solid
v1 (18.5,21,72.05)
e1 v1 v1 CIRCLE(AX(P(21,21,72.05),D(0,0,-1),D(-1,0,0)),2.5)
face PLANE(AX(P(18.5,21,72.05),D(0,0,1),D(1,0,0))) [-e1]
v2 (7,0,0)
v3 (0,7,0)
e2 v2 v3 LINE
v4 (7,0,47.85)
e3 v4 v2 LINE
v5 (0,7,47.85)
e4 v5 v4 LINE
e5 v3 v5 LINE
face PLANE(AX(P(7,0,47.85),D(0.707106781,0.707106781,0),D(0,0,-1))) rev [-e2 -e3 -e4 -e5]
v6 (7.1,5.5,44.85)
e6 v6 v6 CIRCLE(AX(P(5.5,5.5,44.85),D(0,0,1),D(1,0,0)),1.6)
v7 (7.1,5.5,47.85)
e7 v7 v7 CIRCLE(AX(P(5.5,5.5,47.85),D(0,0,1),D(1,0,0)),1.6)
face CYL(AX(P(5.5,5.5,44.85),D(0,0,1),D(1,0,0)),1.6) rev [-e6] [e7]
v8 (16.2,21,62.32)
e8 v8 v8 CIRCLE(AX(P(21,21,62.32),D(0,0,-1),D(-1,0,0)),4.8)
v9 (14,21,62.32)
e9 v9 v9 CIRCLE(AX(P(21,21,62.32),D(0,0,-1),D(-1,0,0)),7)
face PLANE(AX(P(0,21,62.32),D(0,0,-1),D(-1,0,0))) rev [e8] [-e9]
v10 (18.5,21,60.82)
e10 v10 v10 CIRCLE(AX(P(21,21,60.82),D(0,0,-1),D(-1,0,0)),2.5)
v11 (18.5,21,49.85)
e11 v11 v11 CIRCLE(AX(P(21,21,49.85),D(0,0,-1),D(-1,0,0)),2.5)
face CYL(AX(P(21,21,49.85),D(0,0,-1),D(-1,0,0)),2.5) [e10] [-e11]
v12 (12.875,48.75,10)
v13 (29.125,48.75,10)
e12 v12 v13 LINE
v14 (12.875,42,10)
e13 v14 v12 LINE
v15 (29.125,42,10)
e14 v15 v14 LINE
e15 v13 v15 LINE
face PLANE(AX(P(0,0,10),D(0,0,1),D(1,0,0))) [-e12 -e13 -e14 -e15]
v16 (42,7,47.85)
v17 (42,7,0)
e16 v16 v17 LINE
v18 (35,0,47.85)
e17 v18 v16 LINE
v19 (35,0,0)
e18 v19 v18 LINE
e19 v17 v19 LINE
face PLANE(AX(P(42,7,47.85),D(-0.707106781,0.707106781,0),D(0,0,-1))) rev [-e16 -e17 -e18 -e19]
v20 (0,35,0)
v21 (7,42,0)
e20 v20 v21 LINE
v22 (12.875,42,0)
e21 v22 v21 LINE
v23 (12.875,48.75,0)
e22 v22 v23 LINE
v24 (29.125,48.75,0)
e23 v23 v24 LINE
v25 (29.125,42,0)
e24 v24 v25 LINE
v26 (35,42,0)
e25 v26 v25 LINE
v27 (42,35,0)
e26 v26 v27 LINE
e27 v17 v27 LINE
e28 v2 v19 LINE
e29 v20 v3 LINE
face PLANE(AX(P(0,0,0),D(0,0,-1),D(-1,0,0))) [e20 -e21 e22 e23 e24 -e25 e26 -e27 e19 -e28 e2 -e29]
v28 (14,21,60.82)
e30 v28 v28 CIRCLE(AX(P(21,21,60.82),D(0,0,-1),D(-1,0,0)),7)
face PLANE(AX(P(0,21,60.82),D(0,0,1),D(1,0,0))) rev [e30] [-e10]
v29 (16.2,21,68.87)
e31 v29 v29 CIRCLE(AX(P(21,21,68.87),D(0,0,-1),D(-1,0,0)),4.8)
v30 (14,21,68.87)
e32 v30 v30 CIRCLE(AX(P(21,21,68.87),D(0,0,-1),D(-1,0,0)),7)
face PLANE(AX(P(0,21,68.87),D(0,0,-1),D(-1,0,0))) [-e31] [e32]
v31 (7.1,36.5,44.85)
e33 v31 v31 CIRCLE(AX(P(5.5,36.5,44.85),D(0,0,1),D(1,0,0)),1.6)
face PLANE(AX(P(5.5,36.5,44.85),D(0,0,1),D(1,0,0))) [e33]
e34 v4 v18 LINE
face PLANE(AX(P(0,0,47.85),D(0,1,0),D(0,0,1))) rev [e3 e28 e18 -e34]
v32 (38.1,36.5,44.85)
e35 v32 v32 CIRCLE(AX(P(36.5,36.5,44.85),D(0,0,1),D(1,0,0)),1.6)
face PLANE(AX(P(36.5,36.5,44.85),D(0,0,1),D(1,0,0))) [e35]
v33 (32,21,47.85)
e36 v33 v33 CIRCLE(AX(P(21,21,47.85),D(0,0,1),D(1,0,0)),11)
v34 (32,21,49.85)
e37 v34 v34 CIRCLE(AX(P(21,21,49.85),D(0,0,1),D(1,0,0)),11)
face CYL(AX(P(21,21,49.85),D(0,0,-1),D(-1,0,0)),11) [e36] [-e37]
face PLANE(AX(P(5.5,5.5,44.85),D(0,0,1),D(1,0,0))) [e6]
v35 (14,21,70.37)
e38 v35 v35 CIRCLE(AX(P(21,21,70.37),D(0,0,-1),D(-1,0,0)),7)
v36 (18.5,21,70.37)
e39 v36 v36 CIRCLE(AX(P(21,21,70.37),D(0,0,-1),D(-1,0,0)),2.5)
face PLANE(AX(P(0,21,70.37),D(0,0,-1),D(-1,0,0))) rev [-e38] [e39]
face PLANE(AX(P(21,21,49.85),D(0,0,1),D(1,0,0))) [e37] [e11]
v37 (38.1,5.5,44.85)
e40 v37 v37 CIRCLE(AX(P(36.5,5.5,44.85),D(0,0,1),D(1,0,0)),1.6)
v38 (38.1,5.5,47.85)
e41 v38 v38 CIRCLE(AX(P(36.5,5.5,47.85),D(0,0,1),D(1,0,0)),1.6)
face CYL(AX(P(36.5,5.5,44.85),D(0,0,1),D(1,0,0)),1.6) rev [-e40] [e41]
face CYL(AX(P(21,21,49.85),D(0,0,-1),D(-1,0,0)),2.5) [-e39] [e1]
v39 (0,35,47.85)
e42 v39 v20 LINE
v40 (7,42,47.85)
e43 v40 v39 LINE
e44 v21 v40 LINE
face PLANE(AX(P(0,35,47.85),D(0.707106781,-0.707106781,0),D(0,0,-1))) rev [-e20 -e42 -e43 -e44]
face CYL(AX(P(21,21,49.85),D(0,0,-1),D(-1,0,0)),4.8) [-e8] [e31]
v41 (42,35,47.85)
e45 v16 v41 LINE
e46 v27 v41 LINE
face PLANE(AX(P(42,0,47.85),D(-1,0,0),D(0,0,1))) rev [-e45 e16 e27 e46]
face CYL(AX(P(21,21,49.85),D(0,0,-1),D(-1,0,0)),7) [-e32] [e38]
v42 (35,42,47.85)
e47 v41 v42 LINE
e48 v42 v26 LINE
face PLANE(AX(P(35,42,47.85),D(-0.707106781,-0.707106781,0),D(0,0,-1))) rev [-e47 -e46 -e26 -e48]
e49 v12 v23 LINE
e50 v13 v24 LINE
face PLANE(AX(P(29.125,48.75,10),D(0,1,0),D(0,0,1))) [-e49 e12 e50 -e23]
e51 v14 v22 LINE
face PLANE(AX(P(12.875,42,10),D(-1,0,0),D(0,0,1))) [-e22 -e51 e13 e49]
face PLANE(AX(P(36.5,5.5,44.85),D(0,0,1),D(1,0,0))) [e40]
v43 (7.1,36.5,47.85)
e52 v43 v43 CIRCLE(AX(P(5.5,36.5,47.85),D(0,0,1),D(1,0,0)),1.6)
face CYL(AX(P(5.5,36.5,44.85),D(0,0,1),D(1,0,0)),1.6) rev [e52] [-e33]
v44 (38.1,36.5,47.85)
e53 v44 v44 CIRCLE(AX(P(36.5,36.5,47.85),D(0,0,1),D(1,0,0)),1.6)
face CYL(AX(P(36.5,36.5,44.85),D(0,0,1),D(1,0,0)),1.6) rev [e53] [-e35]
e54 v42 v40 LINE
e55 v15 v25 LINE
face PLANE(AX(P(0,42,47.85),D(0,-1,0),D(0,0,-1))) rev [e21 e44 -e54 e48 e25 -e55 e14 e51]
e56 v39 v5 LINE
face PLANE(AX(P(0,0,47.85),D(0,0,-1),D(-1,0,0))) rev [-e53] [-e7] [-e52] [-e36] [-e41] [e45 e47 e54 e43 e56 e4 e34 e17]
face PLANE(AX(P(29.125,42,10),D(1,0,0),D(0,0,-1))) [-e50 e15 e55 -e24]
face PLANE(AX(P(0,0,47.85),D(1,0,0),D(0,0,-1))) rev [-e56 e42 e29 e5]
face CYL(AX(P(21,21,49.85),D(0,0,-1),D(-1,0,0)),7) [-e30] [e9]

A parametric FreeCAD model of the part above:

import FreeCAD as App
import Part
import Sketcher


def edges_at(feature, points):
    """Names of the edges that pass closest to the given points."""
    edges = feature.Shape.Edges
    near = lambda p: min(range(len(edges)), key=lambda i: edges[i].distToShape(Part.Vertex(*p))[0])
    return sorted({f"Edge{near(p) + 1}" for p in points})

doc = App.newDocument("Part")
body = doc.addObject("PartDesign::Body", "Body")

sketch1 = doc.addObject("Sketcher::SketchObject", "Sketch")
body.addObject(sketch1)
sketch1.AttachmentSupport = (doc.XY_Plane, [""])
sketch1.MapMode = "FlatFace"
sketch1.addGeometry([
    Part.LineSegment(App.Vector(0, 42, 0), App.Vector(0, 0, 0)),
    Part.LineSegment(App.Vector(0, 0, 0), App.Vector(42, 0, 0)),
    Part.LineSegment(App.Vector(42, 0, 0), App.Vector(42, 42, 0)),
    Part.LineSegment(App.Vector(42, 42, 0), App.Vector(0, 42, 0)),
], False)
sketch1.addConstraint([
    Sketcher.Constraint("Coincident", 0, 2, 1, 1),
    Sketcher.Constraint("Coincident", 1, 2, 2, 1),
    Sketcher.Constraint("Coincident", 2, 2, 3, 1),
    Sketcher.Constraint("Coincident", 3, 2, 0, 1),
    Sketcher.Constraint("Vertical", 0),
    Sketcher.Constraint("Horizontal", 1),
    Sketcher.Constraint("Vertical", 2),
    Sketcher.Constraint("Horizontal", 3),
    Sketcher.Constraint("Coincident", 0, 2, -1, 1),
    Sketcher.Constraint("Equal", 3, 0),
    Sketcher.Constraint("DistanceX", 1, 1, 1, 2, 42.0),
])
pad1 = doc.addObject("PartDesign::Pad", "Pad")
body.addObject(pad1)
pad1.Profile = sketch1
pad1.Length = 47.85
doc.recompute()

chamfer = doc.addObject("PartDesign::Chamfer", "Chamfer")
body.addObject(chamfer)
chamfer.Base = (pad1, edges_at(pad1, [
    (0, 42, 23.925),
    (42, 42, 23.925),
    (42, 0, 23.925),
    (0, 0, 23.925),
]))
chamfer.Size = 7

sketch2 = doc.addObject("Sketcher::SketchObject", "Sketch001")
body.addObject(sketch2)
sketch2.AttachmentSupport = (doc.XY_Plane, [""])
sketch2.MapMode = "FlatFace"
sketch2.AttachmentOffset = App.Placement(App.Vector(0, 0, 47.85), App.Rotation())
sketch2.addGeometry(Part.Circle(App.Vector(21, 21, 0), App.Vector(0, 0, 1), 11), False)
sketch2.addConstraint([
    Sketcher.Constraint("Diameter", 0, 22.0),
    Sketcher.Constraint("DistanceX", -1, 1, 0, 3, 21.0),
    Sketcher.Constraint("DistanceY", -1, 1, 0, 3, 21.0),
])
pad2 = doc.addObject("PartDesign::Pad", "Pad001")
body.addObject(pad2)
pad2.Profile = sketch2
pad2.Length = 2

sketch3 = doc.addObject("Sketcher::SketchObject", "Sketch002")
body.addObject(sketch3)
sketch3.AttachmentSupport = (doc.XY_Plane, [""])
sketch3.MapMode = "FlatFace"
sketch3.addGeometry([
    Part.LineSegment(App.Vector(29, 49, 0), App.Vector(29, 42, 0)),
    Part.LineSegment(App.Vector(29, 42, 0), App.Vector(13, 42, 0)),
    Part.LineSegment(App.Vector(13, 42, 0), App.Vector(13, 49, 0)),
    Part.LineSegment(App.Vector(13, 49, 0), App.Vector(29, 49, 0)),
], False)
sketch3.addConstraint([
    Sketcher.Constraint("Coincident", 0, 2, 1, 1),
    Sketcher.Constraint("Coincident", 1, 2, 2, 1),
    Sketcher.Constraint("Coincident", 2, 2, 3, 1),
    Sketcher.Constraint("Coincident", 3, 2, 0, 1),
    Sketcher.Constraint("Vertical", 0),
    Sketcher.Constraint("Horizontal", 1),
    Sketcher.Constraint("Vertical", 2),
    Sketcher.Constraint("Horizontal", 3),
    Sketcher.Constraint("DistanceY", -1, 1, 0, 2, 42.0),
    Sketcher.Constraint("DistanceX", 1, 2, 1, 1, 16.25),
    Sketcher.Constraint("DistanceY", 0, 2, 0, 1, 6.75),
    Sketcher.Constraint("DistanceX", -1, 1, 0, 2, 29.125),
])
pad3 = doc.addObject("PartDesign::Pad", "Pad002")
body.addObject(pad3)
pad3.Profile = sketch3
pad3.Length = 10

sketch4 = doc.addObject("Sketcher::SketchObject", "Sketch003")
body.addObject(sketch4)
sketch4.AttachmentSupport = (doc.XY_Plane, [""])
sketch4.MapMode = "FlatFace"
sketch4.AttachmentOffset = App.Placement(App.Vector(0, 0, 47.85), App.Rotation())
sketch4.addGeometry([
    Part.Circle(App.Vector(5.5, 36.5, 0), App.Vector(0, 0, 1), 1.6),
    Part.Circle(App.Vector(36.5, 36.5, 0), App.Vector(0, 0, 1), 1.6),
    Part.Circle(App.Vector(36.5, 5.5, 0), App.Vector(0, 0, 1), 1.6),
    Part.Circle(App.Vector(5.5, 5.5, 0), App.Vector(0, 0, 1), 1.6),
], False)
sketch4.addConstraint([
    Sketcher.Constraint("Equal", 0, 1),
    Sketcher.Constraint("Equal", 1, 2),
    Sketcher.Constraint("Equal", 2, 3),
    Sketcher.Constraint("Horizontal", 0, 3, 1, 3),
    Sketcher.Constraint("Horizontal", 2, 3, 3, 3),
    Sketcher.Constraint("Vertical", 1, 3, 2, 3),
    Sketcher.Constraint("Vertical", 0, 3, 3, 3),
    Sketcher.Constraint("Diameter", 0, 3.2),
    Sketcher.Constraint("DistanceX", 0, 3, 1, 3, 31.0),
    Sketcher.Constraint("DistanceY", 2, 3, 1, 3, 31.0),
    Sketcher.Constraint("DistanceX", -1, 1, 0, 3, 5.5),
    Sketcher.Constraint("DistanceY", -1, 1, 0, 3, 36.5),
])
pocket1 = doc.addObject("PartDesign::Pocket", "Pocket")
body.addObject(pocket1)
pocket1.Profile = sketch4
pocket1.Length = 3

sketch5 = doc.addObject("Sketcher::SketchObject", "Sketch004")
body.addObject(sketch5)
sketch5.AttachmentSupport = (doc.XZ_Plane, [""])
sketch5.MapMode = "FlatFace"
sketch5.AttachmentOffset = App.Placement(App.Vector(0, 0, -21), App.Rotation())
sketch5.addGeometry([
    Part.LineSegment(App.Vector(18.5, 49.9, 0), App.Vector(21, 49.9, 0)),
    Part.LineSegment(App.Vector(21, 49.9, 0), App.Vector(21, 72, 0)),
    Part.LineSegment(App.Vector(21, 72, 0), App.Vector(18.5, 72, 0)),
    Part.LineSegment(App.Vector(18.5, 72, 0), App.Vector(18.5, 70.4, 0)),
    Part.LineSegment(App.Vector(18.5, 70.4, 0), App.Vector(14, 70.4, 0)),
    Part.LineSegment(App.Vector(14, 70.4, 0), App.Vector(14, 68.9, 0)),
    Part.LineSegment(App.Vector(14, 68.9, 0), App.Vector(16.2, 68.9, 0)),
    Part.LineSegment(App.Vector(16.2, 68.9, 0), App.Vector(16.2, 62.3, 0)),
    Part.LineSegment(App.Vector(16.2, 62.3, 0), App.Vector(14, 62.3, 0)),
    Part.LineSegment(App.Vector(14, 62.3, 0), App.Vector(14, 60.8, 0)),
    Part.LineSegment(App.Vector(14, 60.8, 0), App.Vector(18.5, 60.8, 0)),
    Part.LineSegment(App.Vector(18.5, 60.8, 0), App.Vector(18.5, 49.9, 0)),
], False)
sketch5.addGeometry(Part.LineSegment(App.Vector(21, 49.9, 0), App.Vector(21, 72, 0)), True)
sketch5.addConstraint([
    Sketcher.Constraint("Coincident", 0, 2, 1, 1),
    Sketcher.Constraint("Coincident", 1, 2, 2, 1),
    Sketcher.Constraint("Coincident", 2, 2, 3, 1),
    Sketcher.Constraint("Coincident", 3, 2, 4, 1),
    Sketcher.Constraint("Coincident", 4, 2, 5, 1),
    Sketcher.Constraint("Coincident", 5, 2, 6, 1),
    Sketcher.Constraint("Coincident", 6, 2, 7, 1),
    Sketcher.Constraint("Coincident", 7, 2, 8, 1),
    Sketcher.Constraint("Coincident", 8, 2, 9, 1),
    Sketcher.Constraint("Coincident", 9, 2, 10, 1),
    Sketcher.Constraint("Coincident", 10, 2, 11, 1),
    Sketcher.Constraint("Coincident", 11, 2, 0, 1),
    Sketcher.Constraint("Horizontal", 0),
    Sketcher.Constraint("Vertical", 1),
    Sketcher.Constraint("Horizontal", 2),
    Sketcher.Constraint("Vertical", 3),
    Sketcher.Constraint("Horizontal", 4),
    Sketcher.Constraint("Vertical", 5),
    Sketcher.Constraint("Horizontal", 6),
    Sketcher.Constraint("Vertical", 7),
    Sketcher.Constraint("Horizontal", 8),
    Sketcher.Constraint("Vertical", 9),
    Sketcher.Constraint("Horizontal", 10),
    Sketcher.Constraint("Vertical", 11),
    Sketcher.Constraint("Vertical", 12),
    Sketcher.Constraint("Coincident", 12, 1, 0, 2),
    Sketcher.Constraint("Horizontal", 2, 2, 12, 2),
    Sketcher.Constraint("Vertical", 5, 2, 8, 2),
    Sketcher.Constraint("Vertical", 3, 2, 10, 2),
    Sketcher.Constraint("Equal", 5, 9),
    Sketcher.Constraint("DistanceX", 0, 1, 0, 2, 2.5),
    Sketcher.Constraint("DistanceX", 4, 2, 4, 1, 4.5),
    Sketcher.Constraint("DistanceX", 6, 1, 6, 2, 2.2),
    Sketcher.Constraint("DistanceY", 1, 1, 1, 2, 22.2),
    Sketcher.Constraint("DistanceY", 5, 2, 5, 1, 1.5),
    Sketcher.Constraint("DistanceX", -1, 1, 0, 2, 21.0),
    Sketcher.Constraint("DistanceY", 3, 2, 3, 1, 1.68),
    Sketcher.Constraint("DistanceY", 7, 2, 7, 1, 6.55),
    Sketcher.Constraint("DistanceY", -1, 1, 0, 2, 49.85),
])
revolution = doc.addObject("PartDesign::Revolution", "Revolution")
body.addObject(revolution)
revolution.Profile = sketch5
revolution.ReferenceAxis = (sketch5, ["Axis0"])
revolution.Angle = 360

doc.recompute()
